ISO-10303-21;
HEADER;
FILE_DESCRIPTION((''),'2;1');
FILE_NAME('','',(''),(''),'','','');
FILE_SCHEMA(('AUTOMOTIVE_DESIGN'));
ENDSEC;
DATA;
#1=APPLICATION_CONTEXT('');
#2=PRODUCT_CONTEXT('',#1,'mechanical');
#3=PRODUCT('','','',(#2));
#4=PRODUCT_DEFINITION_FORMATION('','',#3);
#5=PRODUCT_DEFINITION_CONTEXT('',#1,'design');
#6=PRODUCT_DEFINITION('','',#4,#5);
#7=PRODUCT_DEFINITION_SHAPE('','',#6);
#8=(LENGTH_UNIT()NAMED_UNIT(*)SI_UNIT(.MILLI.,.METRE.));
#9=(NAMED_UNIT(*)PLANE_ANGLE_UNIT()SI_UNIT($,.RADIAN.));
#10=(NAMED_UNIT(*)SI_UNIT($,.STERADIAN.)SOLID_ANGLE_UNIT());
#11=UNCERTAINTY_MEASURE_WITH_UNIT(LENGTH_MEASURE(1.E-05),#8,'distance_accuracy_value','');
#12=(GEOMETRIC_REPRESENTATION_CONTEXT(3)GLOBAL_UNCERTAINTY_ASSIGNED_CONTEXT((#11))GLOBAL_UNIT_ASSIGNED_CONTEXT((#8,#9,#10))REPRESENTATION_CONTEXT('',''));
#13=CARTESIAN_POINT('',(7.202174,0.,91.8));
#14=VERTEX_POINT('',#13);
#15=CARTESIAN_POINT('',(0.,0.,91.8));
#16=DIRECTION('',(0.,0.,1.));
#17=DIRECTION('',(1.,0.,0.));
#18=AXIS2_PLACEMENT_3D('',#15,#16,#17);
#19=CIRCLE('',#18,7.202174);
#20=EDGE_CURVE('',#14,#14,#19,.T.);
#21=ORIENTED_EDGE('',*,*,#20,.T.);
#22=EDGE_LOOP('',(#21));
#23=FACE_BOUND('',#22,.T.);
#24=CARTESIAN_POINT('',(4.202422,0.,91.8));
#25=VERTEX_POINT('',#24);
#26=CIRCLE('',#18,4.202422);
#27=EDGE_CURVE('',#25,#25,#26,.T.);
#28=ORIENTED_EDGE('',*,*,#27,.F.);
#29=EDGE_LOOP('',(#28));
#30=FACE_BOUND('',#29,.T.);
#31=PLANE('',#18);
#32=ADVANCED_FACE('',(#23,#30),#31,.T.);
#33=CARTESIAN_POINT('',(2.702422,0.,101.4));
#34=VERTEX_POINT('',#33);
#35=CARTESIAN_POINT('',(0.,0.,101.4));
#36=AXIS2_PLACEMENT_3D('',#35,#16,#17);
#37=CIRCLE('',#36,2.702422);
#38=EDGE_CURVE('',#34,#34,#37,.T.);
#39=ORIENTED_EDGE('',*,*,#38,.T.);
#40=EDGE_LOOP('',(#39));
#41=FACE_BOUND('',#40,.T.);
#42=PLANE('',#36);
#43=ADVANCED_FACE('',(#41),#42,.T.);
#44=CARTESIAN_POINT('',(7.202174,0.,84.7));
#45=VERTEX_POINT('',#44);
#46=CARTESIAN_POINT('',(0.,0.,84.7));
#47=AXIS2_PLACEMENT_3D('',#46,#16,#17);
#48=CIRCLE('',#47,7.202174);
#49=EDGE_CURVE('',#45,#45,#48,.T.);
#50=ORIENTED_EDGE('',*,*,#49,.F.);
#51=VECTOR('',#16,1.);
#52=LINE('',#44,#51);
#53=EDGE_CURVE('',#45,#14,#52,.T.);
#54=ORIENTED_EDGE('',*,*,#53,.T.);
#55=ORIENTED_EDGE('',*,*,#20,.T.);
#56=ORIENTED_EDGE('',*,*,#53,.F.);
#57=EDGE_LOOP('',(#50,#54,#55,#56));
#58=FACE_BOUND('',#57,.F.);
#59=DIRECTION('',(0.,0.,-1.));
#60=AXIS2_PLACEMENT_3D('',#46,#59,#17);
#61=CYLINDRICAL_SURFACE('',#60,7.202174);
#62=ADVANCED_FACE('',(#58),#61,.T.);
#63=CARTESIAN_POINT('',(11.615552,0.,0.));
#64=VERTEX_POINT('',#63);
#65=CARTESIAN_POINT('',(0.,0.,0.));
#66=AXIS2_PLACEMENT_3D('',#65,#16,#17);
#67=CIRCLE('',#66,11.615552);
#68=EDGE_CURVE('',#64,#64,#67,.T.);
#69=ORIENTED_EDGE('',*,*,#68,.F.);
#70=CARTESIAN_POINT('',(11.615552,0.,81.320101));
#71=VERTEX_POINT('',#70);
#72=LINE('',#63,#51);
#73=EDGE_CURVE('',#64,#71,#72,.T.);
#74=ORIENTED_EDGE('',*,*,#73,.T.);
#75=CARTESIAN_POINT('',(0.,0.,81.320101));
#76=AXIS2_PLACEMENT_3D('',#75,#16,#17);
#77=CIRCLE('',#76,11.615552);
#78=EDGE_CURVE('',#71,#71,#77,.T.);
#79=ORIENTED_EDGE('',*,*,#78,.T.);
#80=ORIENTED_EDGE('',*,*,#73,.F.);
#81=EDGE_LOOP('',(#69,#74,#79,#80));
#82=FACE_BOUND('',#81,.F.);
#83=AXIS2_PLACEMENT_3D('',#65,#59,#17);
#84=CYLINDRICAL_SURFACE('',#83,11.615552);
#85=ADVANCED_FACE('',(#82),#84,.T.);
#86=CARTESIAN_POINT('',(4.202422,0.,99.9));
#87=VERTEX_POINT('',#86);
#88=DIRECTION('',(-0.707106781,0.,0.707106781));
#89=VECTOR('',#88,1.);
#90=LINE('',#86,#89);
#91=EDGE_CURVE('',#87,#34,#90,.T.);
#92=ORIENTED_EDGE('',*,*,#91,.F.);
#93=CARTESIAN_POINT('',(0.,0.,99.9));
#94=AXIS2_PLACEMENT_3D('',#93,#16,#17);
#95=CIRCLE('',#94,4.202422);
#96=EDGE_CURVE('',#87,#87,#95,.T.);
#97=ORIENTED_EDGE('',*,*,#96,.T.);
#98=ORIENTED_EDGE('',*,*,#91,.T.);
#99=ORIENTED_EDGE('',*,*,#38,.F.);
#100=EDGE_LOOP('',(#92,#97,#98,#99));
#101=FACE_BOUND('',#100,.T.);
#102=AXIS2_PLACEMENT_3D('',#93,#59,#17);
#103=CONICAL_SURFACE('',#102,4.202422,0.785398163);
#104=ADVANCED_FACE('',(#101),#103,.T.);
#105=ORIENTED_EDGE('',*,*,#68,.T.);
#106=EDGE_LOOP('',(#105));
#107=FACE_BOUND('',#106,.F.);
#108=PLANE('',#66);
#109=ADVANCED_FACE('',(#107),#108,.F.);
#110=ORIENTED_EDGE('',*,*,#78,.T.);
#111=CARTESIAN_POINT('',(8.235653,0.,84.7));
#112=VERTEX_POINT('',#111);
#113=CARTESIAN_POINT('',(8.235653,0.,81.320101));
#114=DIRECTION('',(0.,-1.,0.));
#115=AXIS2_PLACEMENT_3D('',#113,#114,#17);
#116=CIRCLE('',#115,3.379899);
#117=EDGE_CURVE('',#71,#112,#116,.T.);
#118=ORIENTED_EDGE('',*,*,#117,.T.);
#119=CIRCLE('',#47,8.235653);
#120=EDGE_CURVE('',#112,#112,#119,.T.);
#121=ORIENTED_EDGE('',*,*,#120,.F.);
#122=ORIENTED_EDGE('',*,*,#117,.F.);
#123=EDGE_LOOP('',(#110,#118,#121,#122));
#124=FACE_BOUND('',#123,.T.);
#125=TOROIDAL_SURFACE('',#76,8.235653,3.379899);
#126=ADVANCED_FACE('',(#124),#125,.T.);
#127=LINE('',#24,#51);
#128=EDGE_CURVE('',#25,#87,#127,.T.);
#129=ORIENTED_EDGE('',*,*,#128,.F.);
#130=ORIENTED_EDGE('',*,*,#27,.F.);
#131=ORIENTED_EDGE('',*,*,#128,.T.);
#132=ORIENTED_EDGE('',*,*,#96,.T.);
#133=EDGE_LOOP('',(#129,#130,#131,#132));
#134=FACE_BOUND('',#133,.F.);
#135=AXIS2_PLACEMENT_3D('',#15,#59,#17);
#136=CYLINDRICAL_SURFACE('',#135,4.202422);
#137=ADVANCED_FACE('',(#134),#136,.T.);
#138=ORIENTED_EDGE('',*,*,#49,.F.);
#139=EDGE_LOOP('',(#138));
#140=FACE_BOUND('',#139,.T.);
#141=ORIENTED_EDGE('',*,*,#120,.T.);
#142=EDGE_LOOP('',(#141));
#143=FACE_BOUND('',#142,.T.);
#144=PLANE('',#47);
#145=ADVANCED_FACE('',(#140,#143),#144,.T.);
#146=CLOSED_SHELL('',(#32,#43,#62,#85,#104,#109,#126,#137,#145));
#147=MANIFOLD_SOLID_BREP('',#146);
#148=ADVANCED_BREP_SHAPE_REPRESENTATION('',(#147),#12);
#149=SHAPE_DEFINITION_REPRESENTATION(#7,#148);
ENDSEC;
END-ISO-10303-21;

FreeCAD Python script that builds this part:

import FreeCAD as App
import Part
import Sketcher
Q = App.Units.Quantity


def edges_at(feature, points):
    """Names of the edges that pass closest to the given points."""
    edges = feature.Shape.Edges
    near = lambda p: min(range(len(edges)), key=lambda i: edges[i].distToShape(Part.Vertex(*p))[0])
    return sorted({f"Edge{near(p) + 1}" for p in points})

doc = App.newDocument("Part")
body = doc.addObject("PartDesign::Body", "Body")

# Sketch on XY plane
sketch1 = doc.addObject("Sketcher::SketchObject", "Sketch")
body.addObject(sketch1)
sketch1.AttachmentSupport = (doc.XY_Plane, [""])
sketch1.MapMode = "FlatFace"
sketch1.addGeometry(Part.Circle(App.Vector(0, 0, 0), App.Vector(0, 0, 1), 12), False)
sketch1.addConstraint(Sketcher.Constraint("Coincident", 0, 3, -1, 1))
sketch1.addConstraint(Sketcher.Constraint("Diameter", 0, Q("23.231104 mm")))
pad1 = doc.addObject("PartDesign::Pad", "Pad")
body.addObject(pad1)
pad1.Profile = sketch1
pad1.Length = 84.7

# Sketch on XY plane
sketch2 = doc.addObject("Sketcher::SketchObject", "Sketch001")
body.addObject(sketch2)
sketch2.AttachmentSupport = (doc.XY_Plane, [""])
sketch2.MapMode = "FlatFace"
sketch2.AttachmentOffset = App.Placement(App.Vector(0, 0, 84.7), App.Rotation())
sketch2.addGeometry(Part.Circle(App.Vector(0, 0, 0), App.Vector(0, 0, 1), 7), False)
sketch2.addConstraint(Sketcher.Constraint("Coincident", 0, 3, -1, 1))
sketch2.addConstraint(Sketcher.Constraint("Diameter", 0, Q("14.404348 mm")))
pad2 = doc.addObject("PartDesign::Pad", "Pad001")
body.addObject(pad2)
pad2.Profile = sketch2
pad2.Length = 7.1

# Sketch on XY plane
sketch3 = doc.addObject("Sketcher::SketchObject", "Sketch002")
body.addObject(sketch3)
sketch3.AttachmentSupport = (doc.XY_Plane, [""])
sketch3.MapMode = "FlatFace"
sketch3.AttachmentOffset = App.Placement(App.Vector(0, 0, 91.8), App.Rotation())
sketch3.addGeometry(Part.Circle(App.Vector(0, 0, 0), App.Vector(0, 0, 1), 4.2), False)
sketch3.addConstraint(Sketcher.Constraint("Coincident", 0, 3, -1, 1))
sketch3.addConstraint(Sketcher.Constraint("Diameter", 0, Q("8.404844 mm")))
pad3 = doc.addObject("PartDesign::Pad", "Pad002")
body.addObject(pad3)
pad3.Profile = sketch3
pad3.Length = 9.6
doc.recompute()

fillet = doc.addObject("PartDesign::Fillet", "Fillet")
body.addObject(fillet)
fillet.Base = (pad3, edges_at(pad3, [(-11.616, 0, 84.7)]))
fillet.Radius = 3.379899
doc.recompute()

chamfer = doc.addObject("PartDesign::Chamfer", "Chamfer")
body.addObject(chamfer)
chamfer.Base = (fillet, edges_at(fillet, [(-4.202, 0, 101.4)]))
chamfer.Size = 1.5

doc.recompute()
